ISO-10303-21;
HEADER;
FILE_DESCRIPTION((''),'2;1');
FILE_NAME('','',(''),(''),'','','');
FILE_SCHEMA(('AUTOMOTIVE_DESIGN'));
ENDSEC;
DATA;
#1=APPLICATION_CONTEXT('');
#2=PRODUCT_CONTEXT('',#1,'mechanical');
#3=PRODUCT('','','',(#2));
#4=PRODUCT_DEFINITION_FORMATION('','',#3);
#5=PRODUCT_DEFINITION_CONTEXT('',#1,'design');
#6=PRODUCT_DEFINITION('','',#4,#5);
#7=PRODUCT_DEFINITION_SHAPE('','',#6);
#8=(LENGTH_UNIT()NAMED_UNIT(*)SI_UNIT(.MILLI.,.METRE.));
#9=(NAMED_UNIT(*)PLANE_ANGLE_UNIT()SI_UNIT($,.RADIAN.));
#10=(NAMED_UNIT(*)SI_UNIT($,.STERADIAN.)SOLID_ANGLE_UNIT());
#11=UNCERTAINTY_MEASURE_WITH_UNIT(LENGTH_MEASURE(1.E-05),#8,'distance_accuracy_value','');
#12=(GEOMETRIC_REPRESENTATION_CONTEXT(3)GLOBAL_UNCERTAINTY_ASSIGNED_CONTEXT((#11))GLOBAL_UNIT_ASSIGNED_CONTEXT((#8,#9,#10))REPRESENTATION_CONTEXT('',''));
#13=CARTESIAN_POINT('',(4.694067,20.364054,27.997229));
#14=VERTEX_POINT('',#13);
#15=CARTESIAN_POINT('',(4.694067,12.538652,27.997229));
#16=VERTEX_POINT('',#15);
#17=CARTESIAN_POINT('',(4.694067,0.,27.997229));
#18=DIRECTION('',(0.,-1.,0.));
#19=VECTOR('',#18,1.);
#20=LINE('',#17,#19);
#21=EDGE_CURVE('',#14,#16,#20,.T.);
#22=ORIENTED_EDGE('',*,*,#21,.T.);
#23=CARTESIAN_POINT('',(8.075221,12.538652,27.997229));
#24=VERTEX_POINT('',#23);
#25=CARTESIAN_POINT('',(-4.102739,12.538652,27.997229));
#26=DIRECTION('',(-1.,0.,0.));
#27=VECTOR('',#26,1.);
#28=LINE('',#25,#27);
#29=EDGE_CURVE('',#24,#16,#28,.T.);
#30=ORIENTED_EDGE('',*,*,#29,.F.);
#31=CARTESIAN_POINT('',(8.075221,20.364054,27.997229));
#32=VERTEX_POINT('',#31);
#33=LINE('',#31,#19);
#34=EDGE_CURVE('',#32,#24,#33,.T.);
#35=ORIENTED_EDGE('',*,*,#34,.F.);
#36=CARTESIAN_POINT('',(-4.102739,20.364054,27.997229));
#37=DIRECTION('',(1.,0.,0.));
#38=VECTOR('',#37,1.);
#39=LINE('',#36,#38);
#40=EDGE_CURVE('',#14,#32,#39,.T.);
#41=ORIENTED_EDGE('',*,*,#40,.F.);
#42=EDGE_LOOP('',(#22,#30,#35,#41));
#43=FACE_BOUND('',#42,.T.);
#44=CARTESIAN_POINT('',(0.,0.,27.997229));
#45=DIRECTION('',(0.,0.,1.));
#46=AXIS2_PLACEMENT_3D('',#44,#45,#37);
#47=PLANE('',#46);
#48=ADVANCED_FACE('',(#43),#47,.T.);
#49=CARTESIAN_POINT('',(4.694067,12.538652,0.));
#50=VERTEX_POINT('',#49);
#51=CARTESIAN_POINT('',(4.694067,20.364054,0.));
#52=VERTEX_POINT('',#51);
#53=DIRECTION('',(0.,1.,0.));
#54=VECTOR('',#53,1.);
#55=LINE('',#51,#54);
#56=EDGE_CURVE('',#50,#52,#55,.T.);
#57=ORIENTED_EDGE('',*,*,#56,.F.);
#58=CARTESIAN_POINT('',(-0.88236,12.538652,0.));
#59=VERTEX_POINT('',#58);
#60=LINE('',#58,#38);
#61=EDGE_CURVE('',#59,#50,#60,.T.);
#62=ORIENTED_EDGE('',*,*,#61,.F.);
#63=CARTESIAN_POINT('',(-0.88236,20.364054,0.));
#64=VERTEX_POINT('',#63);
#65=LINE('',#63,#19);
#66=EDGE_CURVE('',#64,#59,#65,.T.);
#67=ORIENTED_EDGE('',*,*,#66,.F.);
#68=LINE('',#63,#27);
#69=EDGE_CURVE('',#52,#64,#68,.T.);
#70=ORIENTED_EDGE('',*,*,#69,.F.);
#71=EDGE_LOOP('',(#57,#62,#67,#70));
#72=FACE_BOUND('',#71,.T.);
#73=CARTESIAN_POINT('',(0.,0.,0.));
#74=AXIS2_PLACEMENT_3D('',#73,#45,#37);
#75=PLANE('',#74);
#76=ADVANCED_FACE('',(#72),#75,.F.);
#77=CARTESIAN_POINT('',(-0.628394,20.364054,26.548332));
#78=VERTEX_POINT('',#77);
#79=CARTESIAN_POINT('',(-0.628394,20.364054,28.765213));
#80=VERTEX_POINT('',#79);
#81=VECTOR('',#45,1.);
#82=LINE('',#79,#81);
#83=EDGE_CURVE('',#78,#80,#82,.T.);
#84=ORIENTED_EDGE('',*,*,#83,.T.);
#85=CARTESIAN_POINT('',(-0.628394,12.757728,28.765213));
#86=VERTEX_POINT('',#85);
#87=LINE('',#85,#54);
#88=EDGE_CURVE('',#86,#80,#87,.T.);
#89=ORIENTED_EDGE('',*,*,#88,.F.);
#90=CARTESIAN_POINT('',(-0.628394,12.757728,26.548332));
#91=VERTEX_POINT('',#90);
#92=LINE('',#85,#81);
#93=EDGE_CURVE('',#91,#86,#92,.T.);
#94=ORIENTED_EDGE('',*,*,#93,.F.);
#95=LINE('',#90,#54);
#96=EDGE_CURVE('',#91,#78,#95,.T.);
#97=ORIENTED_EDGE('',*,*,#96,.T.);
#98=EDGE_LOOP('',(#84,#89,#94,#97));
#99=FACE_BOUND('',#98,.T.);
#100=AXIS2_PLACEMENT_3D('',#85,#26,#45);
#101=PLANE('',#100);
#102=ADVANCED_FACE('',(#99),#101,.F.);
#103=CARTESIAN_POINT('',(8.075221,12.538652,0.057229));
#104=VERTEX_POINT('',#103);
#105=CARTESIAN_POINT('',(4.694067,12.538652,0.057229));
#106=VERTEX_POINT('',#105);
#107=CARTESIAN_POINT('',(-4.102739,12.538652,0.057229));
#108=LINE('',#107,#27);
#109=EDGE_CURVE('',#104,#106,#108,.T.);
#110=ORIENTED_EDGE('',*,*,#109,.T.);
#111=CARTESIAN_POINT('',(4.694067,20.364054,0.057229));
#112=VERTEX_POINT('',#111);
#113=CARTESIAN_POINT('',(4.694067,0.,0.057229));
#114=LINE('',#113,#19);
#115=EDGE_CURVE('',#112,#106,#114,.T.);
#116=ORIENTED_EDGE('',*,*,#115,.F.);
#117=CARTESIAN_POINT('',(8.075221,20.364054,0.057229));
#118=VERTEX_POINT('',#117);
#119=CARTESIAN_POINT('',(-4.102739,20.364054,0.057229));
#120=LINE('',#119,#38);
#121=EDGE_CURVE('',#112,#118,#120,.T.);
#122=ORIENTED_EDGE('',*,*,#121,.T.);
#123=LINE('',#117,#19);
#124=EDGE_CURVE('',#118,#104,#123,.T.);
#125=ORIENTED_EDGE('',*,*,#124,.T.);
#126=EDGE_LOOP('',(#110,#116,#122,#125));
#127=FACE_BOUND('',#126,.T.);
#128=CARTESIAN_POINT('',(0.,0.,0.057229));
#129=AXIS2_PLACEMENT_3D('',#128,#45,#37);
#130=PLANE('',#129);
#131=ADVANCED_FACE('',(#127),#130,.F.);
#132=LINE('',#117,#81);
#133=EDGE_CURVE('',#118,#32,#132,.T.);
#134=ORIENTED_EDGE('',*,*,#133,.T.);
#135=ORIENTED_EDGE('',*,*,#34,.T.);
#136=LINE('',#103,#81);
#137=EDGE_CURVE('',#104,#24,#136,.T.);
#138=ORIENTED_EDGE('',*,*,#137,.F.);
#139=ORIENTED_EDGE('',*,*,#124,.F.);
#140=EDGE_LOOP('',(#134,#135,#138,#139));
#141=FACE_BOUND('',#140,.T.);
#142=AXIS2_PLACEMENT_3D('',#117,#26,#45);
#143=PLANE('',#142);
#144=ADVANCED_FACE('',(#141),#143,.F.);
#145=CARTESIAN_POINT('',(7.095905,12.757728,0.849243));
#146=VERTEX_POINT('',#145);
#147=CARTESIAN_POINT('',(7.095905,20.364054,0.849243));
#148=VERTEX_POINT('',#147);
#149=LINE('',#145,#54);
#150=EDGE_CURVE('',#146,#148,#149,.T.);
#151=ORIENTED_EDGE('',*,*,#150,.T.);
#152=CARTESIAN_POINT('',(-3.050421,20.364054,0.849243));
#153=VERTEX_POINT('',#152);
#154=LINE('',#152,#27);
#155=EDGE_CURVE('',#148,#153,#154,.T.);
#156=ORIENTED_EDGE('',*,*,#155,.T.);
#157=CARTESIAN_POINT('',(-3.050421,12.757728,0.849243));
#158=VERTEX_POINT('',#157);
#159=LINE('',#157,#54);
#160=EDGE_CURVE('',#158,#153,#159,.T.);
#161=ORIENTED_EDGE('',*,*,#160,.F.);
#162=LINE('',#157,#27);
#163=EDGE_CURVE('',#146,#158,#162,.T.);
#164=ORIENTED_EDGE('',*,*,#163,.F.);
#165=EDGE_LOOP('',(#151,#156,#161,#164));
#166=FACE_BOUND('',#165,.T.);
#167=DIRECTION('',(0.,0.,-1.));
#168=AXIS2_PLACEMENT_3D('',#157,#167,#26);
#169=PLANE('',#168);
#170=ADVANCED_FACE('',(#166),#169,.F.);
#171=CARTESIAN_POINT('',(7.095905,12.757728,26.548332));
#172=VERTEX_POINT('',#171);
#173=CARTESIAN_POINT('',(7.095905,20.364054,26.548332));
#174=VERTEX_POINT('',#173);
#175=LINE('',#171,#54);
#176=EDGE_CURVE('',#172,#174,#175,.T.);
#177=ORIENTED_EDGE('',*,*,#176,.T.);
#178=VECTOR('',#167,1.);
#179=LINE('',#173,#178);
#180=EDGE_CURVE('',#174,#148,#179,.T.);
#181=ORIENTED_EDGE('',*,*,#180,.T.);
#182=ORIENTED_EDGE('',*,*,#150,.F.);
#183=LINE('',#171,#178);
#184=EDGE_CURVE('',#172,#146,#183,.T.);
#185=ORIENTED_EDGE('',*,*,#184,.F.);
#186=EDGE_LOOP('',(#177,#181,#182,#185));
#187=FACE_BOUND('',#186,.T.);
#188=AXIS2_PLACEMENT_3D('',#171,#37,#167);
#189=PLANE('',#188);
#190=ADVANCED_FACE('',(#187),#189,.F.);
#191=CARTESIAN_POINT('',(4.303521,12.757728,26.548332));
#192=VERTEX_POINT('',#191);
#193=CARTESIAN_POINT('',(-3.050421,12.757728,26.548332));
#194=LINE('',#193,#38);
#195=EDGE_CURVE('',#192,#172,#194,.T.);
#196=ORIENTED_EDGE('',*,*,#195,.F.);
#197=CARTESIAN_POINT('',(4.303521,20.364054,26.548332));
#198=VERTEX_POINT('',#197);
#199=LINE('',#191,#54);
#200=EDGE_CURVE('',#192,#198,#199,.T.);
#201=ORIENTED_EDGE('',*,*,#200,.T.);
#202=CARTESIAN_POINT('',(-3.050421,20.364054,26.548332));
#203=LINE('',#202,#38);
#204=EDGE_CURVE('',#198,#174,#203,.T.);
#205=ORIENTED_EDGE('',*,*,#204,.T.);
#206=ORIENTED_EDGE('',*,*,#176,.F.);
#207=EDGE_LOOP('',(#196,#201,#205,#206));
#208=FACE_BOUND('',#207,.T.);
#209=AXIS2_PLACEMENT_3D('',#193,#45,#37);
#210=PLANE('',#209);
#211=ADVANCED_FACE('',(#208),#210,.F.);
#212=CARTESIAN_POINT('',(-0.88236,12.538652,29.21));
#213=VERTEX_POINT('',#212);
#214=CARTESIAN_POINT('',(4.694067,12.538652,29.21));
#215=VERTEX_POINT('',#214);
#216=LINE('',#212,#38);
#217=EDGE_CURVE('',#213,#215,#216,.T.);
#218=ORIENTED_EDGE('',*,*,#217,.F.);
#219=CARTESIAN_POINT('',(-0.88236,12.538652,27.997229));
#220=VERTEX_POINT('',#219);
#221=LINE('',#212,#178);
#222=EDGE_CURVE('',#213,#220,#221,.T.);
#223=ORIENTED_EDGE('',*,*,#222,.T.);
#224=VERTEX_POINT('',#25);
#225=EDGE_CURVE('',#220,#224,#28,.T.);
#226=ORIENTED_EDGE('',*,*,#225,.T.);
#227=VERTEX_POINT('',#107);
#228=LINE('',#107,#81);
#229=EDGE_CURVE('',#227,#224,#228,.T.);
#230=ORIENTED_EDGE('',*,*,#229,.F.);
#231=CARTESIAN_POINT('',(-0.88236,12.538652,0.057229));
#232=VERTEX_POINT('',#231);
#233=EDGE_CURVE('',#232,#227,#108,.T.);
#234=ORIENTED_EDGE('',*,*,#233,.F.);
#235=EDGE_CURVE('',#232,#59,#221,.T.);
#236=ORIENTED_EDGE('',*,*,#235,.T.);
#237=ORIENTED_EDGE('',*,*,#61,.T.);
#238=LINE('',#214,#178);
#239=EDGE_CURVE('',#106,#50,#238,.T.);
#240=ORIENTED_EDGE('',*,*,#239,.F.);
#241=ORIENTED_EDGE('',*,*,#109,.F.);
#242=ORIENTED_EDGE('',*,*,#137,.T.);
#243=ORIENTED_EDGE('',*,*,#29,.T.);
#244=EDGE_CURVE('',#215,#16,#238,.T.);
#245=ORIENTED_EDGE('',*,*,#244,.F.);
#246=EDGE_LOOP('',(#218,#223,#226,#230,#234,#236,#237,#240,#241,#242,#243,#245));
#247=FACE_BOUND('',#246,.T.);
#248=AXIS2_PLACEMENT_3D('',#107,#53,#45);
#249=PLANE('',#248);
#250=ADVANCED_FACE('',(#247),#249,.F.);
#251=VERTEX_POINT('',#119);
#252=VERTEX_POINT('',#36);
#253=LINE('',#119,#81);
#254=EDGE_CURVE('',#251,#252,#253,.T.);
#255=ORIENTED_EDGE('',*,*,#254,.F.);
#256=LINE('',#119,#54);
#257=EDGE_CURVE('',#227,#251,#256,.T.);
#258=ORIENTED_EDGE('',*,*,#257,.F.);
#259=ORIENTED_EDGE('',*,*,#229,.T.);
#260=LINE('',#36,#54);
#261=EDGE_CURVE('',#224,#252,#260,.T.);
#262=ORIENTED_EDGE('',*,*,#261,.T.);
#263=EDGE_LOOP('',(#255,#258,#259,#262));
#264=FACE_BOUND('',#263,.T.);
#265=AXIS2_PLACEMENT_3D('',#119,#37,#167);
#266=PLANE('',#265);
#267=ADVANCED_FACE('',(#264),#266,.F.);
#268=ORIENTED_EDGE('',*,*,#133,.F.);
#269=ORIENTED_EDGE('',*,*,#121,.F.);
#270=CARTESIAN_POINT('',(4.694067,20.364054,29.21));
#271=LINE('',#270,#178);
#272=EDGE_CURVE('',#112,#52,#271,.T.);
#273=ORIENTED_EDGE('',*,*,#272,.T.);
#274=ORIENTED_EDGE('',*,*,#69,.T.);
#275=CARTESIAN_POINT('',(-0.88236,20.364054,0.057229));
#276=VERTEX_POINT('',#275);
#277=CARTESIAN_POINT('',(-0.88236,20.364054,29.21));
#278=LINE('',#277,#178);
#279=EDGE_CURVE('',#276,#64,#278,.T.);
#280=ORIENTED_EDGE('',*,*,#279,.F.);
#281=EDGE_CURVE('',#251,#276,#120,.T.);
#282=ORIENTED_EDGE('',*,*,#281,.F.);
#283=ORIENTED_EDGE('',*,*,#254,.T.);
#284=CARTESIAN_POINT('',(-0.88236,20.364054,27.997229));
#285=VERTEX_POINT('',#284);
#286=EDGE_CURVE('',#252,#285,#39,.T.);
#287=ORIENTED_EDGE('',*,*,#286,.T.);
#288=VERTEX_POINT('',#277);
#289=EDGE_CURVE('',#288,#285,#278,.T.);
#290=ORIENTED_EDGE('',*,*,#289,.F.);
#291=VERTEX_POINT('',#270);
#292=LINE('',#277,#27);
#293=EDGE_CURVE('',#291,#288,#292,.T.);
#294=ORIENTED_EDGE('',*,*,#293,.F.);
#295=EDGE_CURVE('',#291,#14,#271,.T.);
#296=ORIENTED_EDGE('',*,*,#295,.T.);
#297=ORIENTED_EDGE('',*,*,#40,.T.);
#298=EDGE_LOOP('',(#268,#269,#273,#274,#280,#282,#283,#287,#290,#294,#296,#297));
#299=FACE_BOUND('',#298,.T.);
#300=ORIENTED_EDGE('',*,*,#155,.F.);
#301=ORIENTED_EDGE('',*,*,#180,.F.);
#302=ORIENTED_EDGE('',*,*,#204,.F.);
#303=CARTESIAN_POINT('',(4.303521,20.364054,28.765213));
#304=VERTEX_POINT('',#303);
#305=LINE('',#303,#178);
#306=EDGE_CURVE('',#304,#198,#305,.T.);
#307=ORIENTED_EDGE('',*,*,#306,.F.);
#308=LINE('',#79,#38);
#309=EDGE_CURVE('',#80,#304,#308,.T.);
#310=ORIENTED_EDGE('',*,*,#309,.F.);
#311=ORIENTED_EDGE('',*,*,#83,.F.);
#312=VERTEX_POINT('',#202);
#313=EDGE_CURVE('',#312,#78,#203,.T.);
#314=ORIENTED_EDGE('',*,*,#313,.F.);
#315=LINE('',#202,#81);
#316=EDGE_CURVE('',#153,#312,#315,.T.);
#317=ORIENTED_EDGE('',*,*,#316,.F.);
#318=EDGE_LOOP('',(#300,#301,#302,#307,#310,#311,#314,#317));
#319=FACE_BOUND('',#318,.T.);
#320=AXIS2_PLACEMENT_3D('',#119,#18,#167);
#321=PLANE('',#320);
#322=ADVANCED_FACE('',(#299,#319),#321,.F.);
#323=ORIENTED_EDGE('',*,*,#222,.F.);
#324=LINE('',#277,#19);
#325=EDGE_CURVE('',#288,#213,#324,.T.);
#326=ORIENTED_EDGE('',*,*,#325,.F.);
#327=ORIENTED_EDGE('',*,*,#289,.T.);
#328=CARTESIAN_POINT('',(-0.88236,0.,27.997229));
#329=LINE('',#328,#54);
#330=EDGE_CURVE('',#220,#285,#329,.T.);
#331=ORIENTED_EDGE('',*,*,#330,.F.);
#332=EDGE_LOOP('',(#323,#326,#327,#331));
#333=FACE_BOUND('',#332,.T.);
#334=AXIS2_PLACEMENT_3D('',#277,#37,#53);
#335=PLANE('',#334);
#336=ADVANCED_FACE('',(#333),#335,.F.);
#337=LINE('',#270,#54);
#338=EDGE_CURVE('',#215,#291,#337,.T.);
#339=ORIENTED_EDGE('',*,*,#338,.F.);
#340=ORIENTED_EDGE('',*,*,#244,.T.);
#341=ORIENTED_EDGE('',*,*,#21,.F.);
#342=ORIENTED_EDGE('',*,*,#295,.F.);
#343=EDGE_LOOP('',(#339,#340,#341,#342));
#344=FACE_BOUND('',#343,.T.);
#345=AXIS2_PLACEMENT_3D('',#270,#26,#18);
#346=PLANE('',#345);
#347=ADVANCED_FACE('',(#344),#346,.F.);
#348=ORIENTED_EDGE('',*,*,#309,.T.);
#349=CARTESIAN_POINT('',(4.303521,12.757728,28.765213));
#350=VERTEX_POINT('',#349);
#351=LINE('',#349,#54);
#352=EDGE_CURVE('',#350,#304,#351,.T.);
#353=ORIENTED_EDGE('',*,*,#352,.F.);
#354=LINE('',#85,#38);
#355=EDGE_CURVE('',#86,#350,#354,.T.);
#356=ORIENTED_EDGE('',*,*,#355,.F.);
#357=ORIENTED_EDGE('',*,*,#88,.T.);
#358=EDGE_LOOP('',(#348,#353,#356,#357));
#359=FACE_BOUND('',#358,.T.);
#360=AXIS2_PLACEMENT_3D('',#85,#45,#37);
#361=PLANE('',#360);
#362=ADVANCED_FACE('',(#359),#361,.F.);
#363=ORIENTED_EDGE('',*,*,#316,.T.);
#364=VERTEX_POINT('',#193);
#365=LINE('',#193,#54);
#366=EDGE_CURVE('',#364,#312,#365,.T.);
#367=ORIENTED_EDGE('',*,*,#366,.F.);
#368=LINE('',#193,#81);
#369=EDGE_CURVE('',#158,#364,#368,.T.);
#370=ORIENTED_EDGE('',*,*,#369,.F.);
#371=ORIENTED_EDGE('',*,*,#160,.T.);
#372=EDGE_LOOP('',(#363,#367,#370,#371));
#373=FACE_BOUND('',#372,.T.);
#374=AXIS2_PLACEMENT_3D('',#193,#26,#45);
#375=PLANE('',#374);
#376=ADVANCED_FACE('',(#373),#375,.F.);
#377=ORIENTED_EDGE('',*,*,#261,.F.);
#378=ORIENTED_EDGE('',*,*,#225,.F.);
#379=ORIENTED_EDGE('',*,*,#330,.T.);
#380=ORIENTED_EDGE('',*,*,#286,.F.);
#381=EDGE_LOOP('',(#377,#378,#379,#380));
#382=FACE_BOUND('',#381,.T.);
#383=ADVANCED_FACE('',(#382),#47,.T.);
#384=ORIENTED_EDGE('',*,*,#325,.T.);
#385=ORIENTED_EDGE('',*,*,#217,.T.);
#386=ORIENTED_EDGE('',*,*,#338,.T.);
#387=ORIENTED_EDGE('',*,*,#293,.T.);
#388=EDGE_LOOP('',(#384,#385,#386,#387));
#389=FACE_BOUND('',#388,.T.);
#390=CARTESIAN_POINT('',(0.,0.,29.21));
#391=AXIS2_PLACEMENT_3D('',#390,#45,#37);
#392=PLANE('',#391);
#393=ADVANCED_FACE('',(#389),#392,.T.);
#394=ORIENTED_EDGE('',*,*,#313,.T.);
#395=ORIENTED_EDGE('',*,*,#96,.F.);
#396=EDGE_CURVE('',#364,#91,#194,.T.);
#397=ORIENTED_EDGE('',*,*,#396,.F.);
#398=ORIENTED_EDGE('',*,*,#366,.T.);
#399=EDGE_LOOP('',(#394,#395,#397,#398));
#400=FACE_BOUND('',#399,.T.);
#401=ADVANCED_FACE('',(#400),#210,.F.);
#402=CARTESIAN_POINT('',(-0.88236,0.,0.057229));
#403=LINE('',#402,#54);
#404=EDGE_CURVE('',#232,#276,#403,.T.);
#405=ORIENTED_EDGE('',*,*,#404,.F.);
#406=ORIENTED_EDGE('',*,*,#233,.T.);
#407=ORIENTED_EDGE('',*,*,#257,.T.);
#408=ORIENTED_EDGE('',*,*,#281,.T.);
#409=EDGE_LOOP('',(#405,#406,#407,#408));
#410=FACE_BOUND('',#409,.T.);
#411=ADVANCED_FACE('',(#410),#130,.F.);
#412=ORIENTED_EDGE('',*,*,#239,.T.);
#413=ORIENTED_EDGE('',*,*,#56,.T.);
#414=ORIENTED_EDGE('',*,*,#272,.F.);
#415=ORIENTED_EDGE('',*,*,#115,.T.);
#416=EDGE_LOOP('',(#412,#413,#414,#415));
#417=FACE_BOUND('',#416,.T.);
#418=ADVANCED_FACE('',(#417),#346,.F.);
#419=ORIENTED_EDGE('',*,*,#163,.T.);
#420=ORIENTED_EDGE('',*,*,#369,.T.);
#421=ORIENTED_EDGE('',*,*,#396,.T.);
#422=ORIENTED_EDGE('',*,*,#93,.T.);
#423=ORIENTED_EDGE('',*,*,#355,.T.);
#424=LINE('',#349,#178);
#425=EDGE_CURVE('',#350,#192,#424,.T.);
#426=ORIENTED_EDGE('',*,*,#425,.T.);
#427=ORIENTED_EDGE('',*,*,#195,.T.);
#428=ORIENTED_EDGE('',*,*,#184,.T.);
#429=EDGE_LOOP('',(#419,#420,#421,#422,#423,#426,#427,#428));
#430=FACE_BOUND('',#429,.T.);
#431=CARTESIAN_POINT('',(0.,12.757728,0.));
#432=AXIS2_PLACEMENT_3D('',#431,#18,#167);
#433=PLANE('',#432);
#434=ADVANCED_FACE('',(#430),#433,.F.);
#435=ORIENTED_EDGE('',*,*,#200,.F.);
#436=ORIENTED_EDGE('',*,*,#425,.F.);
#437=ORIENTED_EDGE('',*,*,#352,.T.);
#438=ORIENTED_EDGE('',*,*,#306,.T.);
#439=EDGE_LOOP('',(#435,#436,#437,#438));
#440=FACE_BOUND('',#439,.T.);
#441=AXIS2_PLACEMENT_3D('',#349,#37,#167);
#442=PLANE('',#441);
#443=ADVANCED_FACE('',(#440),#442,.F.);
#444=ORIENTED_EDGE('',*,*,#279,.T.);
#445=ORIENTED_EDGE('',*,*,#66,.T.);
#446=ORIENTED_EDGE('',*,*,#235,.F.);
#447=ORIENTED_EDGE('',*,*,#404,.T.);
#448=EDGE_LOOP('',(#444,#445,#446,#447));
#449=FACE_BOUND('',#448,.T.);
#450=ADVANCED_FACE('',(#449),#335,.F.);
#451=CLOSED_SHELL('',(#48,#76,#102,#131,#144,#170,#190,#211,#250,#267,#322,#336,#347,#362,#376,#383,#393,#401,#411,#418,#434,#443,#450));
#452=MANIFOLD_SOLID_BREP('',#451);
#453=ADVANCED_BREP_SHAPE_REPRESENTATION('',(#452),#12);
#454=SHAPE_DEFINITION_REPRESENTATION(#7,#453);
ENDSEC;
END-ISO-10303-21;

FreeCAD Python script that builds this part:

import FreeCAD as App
import Part
import Sketcher
from FreeCAD import Vector

doc = App.newDocument("Part")
params = doc.addObject("Spreadsheet::Sheet", "Params")
for row, (alias, value) in enumerate([
    ("pad1_length", "1.1 in"),
    ("pad2_length", "1.15 in"),
    ("pocket1_length", "7.606326 mm"),
    ("pocket2_length", "7.606326 mm"),
], start=1):
    params.set(f"A{row}", alias)
    params.set(f"B{row}", "=" + value)
    params.setAlias(f"B{row}", alias)

body = doc.addObject("PartDesign::Body", "Body")

# Sketch on XY plane
sketch1 = body.newObject("Sketcher::SketchObject", "Sketch")
sketch1.AttachmentSupport = (doc.getObject("XY_Plane"), [""])
sketch1.MapMode = "FlatFace"
sketch1.AttachmentOffset = App.Placement(Vector(0, 0, 0.057229), App.Rotation())
sketch1.addGeometry([
    Part.LineSegment(Vector(-4, 13, 0), Vector(-4, 20, 0)),
    Part.LineSegment(Vector(-4, 20, 0), Vector(8, 20, 0)),
    Part.LineSegment(Vector(8, 20, 0), Vector(8, 13, 0)),
    Part.LineSegment(Vector(8, 13, 0), Vector(-4, 13, 0)),
], False)
sketch1.addConstraint([
    Sketcher.Constraint("Coincident", 0, 2, 1, 1),
    Sketcher.Constraint("Coincident", 1, 2, 2, 1),
    Sketcher.Constraint("Coincident", 2, 2, 3, 1),
    Sketcher.Constraint("Coincident", 3, 2, 0, 1),
    Sketcher.Constraint("Vertical", 0),
    Sketcher.Constraint("Horizontal", 1),
    Sketcher.Constraint("Vertical", 2),
    Sketcher.Constraint("Horizontal", 3),
    Sketcher.Constraint("DistanceY", 0, 1, 0, 2, 7.825402),
    Sketcher.Constraint("DistanceX", 1, 1, 1, 2, 12.17796),
    Sketcher.Constraint("DistanceX", 0, 2, -1, 1, 4.102739),
    Sketcher.Constraint("DistanceY", -1, 1, 0, 2, 20.364054),
])
pad1 = body.newObject("PartDesign::Pad", "Pad")
pad1.Profile = sketch1
pad1.setExpression("Length", "Params.pad1_length")

# Sketch on XY plane
sketch2 = body.newObject("Sketcher::SketchObject", "Sketch001")
sketch2.AttachmentSupport = (doc.getObject("XY_Plane"), [""])
sketch2.MapMode = "FlatFace"
sketch2.addGeometry([
    Part.LineSegment(Vector(-1, 20, 0), Vector(-1, 13, 0)),
    Part.LineSegment(Vector(-1, 13, 0), Vector(5, 13, 0)),
    Part.LineSegment(Vector(5, 13, 0), Vector(5, 20, 0)),
    Part.LineSegment(Vector(5, 20, 0), Vector(-1, 20, 0)),
], False)
sketch2.addConstraint([
    Sketcher.Constraint("Coincident", 0, 2, 1, 1),
    Sketcher.Constraint("Coincident", 1, 2, 2, 1),
    Sketcher.Constraint("Coincident", 2, 2, 3, 1),
    Sketcher.Constraint("Coincident", 3, 2, 0, 1),
    Sketcher.Constraint("Vertical", 0),
    Sketcher.Constraint("Horizontal", 1),
    Sketcher.Constraint("Vertical", 2),
    Sketcher.Constraint("Horizontal", 3),
    Sketcher.Constraint("DistanceY", 0, 2, 0, 1, 7.825402),
    Sketcher.Constraint("DistanceX", 1, 1, 1, 2, 5.576428),
    Sketcher.Constraint("DistanceX", 0, 2, -1, 1, 0.88236),
    Sketcher.Constraint("DistanceY", -1, 1, 0, 2, 12.538652),
])
pad2 = body.newObject("PartDesign::Pad", "Pad001")
pad2.Profile = sketch2
pad2.setExpression("Length", "Params.pad2_length")

# Sketch on XZ plane
sketch3 = body.newObject("Sketcher::SketchObject", "Sketch002")
sketch3.AttachmentSupport = (doc.getObject("XZ_Plane"), [""])
sketch3.MapMode = "FlatFace"
sketch3.AttachmentOffset = App.Placement(Vector(0, 0, -20.364054), App.Rotation())
sketch3.addGeometry([
    Part.LineSegment(Vector(-3, 1, 0), Vector(-3, 27, 0)),
    Part.LineSegment(Vector(-3, 27, 0), Vector(7, 27, 0)),
    Part.LineSegment(Vector(7, 27, 0), Vector(7, 1, 0)),
    Part.LineSegment(Vector(7, 1, 0), Vector(-3, 1, 0)),
], False)
sketch3.addConstraint([
    Sketcher.Constraint("Coincident", 0, 2, 1, 1),
    Sketcher.Constraint("Coincident", 1, 2, 2, 1),
    Sketcher.Constraint("Coincident", 2, 2, 3, 1),
    Sketcher.Constraint("Coincident", 3, 2, 0, 1),
    Sketcher.Constraint("Vertical", 0),
    Sketcher.Constraint("Horizontal", 1),
    Sketcher.Constraint("Vertical", 2),
    Sketcher.Constraint("Horizontal", 3),
    Sketcher.Constraint("DistanceY", 0, 1, 0, 2, 25.699088),
    Sketcher.Constraint("DistanceX", 1, 1, 1, 2, 10.146326),
    Sketcher.Constraint("DistanceX", 0, 2, -1, 1, 3.050421),
    Sketcher.Constraint("DistanceY", -1, 1, 0, 2, 26.548332),
])
pocket1 = body.newObject("PartDesign::Pocket", "Pocket")
pocket1.Profile = sketch3
pocket1.setExpression("Length", "Params.pocket1_length")
pocket1.Reversed = True

# Sketch on XZ plane
sketch4 = body.newObject("Sketcher::SketchObject", "Sketch003")
sketch4.AttachmentSupport = (doc.getObject("XZ_Plane"), [""])
sketch4.MapMode = "FlatFace"
sketch4.AttachmentOffset = App.Placement(Vector(0, 0, -20.364054), App.Rotation())
sketch4.addGeometry([
    Part.LineSegment(Vector(-0.6, 26.5, 0), Vector(-0.6, 28.8, 0)),
    Part.LineSegment(Vector(-0.6, 28.8, 0), Vector(4.3, 28.8, 0)),
    Part.LineSegment(Vector(4.3, 28.8, 0), Vector(4.3, 26.5, 0)),
    Part.LineSegment(Vector(4.3, 26.5, 0), Vector(-0.6, 26.5, 0)),
], False)
sketch4.addConstraint([
    Sketcher.Constraint("Coincident", 0, 2, 1, 1),
    Sketcher.Constraint("Coincident", 1, 2, 2, 1),
    Sketcher.Constraint("Coincident", 2, 2, 3, 1),
    Sketcher.Constraint("Coincident", 3, 2, 0, 1),
    Sketcher.Constraint("Vertical", 0),
    Sketcher.Constraint("Horizontal", 1),
    Sketcher.Constraint("Vertical", 2),
    Sketcher.Constraint("Horizontal", 3),
    Sketcher.Constraint("DistanceY", 0, 1, 0, 2, 2.216881),
    Sketcher.Constraint("DistanceX", 1, 1, 1, 2, 4.931915),
    Sketcher.Constraint("DistanceX", -1, 1, 1, 2, 4.303521),
    Sketcher.Constraint("DistanceY", -1, 1, 2, 2, 26.548332),
])
pocket2 = body.newObject("PartDesign::Pocket", "Pocket001")
pocket2.Profile = sketch4
pocket2.setExpression("Length", "Params.pocket2_length")
pocket2.Reversed = True

doc.recompute()
